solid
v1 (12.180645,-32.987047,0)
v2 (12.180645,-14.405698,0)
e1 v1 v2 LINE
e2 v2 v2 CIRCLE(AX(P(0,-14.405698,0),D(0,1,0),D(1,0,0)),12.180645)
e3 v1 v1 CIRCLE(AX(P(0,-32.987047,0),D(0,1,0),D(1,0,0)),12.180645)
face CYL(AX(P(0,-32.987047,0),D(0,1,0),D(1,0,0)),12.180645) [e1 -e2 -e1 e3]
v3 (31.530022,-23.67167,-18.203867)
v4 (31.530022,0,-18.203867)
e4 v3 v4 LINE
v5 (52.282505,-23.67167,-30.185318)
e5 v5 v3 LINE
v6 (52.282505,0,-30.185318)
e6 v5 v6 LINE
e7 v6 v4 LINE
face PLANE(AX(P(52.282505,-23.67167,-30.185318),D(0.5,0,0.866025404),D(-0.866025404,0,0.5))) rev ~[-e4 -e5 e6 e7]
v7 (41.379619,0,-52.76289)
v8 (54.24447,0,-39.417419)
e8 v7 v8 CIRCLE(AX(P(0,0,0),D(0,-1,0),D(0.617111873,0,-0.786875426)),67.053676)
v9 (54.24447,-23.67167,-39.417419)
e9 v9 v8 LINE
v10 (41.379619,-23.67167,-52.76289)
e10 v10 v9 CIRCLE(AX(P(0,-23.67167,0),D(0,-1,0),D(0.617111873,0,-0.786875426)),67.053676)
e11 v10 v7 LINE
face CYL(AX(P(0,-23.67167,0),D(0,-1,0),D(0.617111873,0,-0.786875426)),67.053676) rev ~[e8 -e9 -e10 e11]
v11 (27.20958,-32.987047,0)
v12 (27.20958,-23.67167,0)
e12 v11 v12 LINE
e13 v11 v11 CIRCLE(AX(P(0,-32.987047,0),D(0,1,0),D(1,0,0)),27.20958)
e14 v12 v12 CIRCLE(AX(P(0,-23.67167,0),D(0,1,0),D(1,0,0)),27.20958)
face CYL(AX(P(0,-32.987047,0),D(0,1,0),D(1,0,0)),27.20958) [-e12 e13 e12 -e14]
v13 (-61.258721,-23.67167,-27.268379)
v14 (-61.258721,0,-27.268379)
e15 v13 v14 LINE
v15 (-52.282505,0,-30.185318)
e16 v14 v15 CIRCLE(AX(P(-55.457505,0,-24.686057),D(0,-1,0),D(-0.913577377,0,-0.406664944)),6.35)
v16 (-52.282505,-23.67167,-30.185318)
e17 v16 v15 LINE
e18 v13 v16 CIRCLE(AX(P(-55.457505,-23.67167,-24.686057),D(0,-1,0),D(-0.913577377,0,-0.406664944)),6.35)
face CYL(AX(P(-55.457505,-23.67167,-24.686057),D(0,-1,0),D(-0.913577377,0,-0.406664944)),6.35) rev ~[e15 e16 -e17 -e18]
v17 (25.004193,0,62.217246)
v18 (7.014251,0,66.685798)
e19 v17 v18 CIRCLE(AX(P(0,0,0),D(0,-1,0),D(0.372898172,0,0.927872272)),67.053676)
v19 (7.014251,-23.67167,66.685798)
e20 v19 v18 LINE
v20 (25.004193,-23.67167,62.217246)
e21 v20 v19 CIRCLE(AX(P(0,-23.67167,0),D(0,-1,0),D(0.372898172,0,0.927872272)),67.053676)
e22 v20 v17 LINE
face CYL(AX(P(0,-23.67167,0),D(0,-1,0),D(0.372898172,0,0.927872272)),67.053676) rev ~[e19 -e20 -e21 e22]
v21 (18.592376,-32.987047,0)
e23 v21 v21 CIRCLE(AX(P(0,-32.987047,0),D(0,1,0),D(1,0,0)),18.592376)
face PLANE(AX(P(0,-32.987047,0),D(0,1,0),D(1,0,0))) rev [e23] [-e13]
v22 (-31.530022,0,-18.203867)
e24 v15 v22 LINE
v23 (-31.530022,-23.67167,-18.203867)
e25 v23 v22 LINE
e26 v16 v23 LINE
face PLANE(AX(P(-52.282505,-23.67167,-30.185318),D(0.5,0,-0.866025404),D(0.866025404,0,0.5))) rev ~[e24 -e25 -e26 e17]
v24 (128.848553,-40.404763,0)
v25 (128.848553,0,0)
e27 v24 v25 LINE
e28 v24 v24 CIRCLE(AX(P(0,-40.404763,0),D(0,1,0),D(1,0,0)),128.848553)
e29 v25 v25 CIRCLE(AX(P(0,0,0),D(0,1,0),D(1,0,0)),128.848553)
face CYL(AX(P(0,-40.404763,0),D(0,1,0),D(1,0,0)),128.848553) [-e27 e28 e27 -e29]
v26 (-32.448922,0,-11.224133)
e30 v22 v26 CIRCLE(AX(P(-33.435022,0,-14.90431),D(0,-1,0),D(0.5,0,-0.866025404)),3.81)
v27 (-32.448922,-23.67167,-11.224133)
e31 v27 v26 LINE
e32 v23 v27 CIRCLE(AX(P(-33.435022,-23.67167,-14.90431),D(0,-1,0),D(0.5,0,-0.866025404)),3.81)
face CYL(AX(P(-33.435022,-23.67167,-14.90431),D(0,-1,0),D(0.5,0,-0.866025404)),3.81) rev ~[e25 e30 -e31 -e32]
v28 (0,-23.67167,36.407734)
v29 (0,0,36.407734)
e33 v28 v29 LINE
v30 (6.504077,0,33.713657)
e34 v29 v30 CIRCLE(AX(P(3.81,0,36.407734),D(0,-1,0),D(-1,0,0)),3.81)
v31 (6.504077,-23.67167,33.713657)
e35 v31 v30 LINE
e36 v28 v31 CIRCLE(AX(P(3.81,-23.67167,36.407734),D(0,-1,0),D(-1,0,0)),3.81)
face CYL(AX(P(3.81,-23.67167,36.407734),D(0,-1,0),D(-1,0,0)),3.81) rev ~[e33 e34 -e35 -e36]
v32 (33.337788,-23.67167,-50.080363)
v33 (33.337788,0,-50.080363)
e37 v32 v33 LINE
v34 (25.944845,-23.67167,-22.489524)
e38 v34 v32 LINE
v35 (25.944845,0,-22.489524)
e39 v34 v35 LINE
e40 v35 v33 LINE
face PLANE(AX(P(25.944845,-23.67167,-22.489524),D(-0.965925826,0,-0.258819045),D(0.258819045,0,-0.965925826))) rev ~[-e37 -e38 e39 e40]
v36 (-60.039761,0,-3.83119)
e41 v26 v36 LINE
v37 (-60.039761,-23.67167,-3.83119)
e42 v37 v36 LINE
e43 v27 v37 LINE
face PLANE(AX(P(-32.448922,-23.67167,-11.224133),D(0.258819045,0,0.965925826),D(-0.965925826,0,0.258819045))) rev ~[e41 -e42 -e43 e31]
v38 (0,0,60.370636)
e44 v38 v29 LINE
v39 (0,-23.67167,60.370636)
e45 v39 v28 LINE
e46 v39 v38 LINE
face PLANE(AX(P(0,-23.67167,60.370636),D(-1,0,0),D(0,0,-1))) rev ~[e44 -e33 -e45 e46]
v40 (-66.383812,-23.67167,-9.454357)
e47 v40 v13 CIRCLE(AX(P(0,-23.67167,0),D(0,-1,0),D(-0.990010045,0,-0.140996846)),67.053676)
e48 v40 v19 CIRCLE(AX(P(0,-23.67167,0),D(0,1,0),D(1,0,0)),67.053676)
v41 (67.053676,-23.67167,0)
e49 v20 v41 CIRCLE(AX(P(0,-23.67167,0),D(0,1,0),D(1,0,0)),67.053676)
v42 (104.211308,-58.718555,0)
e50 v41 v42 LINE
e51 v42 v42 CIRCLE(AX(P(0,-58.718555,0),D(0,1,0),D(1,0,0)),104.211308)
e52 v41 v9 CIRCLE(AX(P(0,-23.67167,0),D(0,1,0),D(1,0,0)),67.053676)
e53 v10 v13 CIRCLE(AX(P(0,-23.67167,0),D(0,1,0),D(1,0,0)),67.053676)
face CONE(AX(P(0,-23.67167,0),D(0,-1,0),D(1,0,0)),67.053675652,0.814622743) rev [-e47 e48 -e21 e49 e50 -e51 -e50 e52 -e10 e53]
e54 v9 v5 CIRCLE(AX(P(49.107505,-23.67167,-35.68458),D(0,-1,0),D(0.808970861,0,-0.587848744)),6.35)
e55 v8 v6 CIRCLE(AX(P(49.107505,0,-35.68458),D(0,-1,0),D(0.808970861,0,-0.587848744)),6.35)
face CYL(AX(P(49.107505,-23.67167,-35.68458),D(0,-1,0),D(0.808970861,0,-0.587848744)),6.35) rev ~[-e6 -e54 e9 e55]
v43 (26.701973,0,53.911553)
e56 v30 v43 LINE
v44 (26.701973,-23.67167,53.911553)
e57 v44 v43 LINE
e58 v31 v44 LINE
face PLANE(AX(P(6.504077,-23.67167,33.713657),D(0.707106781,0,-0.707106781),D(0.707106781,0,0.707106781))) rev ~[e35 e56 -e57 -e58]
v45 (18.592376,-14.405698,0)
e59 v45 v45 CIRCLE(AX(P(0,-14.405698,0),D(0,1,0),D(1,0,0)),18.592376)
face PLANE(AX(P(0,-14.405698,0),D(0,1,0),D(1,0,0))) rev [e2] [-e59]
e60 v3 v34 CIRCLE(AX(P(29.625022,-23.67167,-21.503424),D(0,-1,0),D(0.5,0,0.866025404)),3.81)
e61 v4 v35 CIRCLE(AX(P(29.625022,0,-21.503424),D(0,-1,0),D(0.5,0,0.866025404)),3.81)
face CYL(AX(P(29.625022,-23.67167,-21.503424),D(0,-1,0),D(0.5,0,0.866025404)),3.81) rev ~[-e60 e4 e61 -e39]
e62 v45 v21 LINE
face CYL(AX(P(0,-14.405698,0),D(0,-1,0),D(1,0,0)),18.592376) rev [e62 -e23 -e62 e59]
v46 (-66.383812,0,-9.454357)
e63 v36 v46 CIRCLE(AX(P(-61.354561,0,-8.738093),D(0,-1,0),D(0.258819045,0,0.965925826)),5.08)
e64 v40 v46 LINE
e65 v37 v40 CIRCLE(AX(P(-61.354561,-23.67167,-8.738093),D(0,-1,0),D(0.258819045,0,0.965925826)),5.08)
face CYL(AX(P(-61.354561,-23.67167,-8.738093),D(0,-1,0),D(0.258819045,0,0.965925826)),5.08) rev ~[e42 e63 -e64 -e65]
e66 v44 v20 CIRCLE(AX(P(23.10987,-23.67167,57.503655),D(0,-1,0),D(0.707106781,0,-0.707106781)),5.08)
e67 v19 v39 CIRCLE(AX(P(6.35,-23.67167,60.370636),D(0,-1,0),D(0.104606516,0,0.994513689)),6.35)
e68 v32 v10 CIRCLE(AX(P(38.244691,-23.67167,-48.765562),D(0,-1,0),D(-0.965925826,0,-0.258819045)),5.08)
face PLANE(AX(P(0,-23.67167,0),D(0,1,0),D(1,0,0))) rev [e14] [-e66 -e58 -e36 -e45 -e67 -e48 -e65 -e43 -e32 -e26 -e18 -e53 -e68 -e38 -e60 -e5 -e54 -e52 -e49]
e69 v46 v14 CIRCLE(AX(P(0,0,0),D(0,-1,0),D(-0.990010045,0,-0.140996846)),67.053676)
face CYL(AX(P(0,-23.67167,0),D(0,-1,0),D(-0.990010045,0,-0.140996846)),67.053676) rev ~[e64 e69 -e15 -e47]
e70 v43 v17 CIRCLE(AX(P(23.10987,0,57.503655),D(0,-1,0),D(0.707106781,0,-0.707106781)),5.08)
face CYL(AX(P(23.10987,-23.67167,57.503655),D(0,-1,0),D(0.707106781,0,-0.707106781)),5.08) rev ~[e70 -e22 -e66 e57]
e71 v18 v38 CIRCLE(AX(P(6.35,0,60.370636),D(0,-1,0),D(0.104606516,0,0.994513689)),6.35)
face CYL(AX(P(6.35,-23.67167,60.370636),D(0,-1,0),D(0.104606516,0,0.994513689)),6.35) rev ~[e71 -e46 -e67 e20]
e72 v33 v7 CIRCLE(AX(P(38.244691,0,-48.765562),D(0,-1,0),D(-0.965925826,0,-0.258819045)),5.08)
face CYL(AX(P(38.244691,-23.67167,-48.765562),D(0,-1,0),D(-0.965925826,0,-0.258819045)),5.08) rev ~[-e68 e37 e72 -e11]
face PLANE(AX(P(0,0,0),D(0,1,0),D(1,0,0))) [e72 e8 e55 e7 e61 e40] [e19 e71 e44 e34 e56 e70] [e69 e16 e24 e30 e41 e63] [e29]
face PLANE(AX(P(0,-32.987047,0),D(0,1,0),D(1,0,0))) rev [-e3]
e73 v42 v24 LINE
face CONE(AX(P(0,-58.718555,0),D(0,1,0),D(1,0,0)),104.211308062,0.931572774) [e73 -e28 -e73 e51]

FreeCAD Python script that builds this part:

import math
import FreeCAD as App
import Part
import Sketcher
from FreeCAD import Vector
Q = App.Units.Quantity


def faces_at(feature, points):
    """Names of the faces that lie closest to the given points."""
    faces = feature.Shape.Faces
    near = lambda p: min(range(len(faces)), key=lambda i: faces[i].distToShape(Part.Vertex(*p))[0])
    return sorted({f"Face{near(p) + 1}" for p in points})


def add_polygon(sketch, points):
    """Adds a closed chain of lines whose ends are joined by coincident constraints."""
    first, n = sketch.GeometryCount, len(points)
    for a, b in zip(points, points[1:] + points[:1]):
        sketch.addGeometry(Part.LineSegment(App.Vector(*a, 0), App.Vector(*b, 0)), False)
    for i in range(n):
        sketch.addConstraint(Sketcher.Constraint("Coincident", first + i, 2, first + (i + 1) % n, 1))

doc = App.newDocument("Part")
body = doc.addObject("PartDesign::Body", "Body")

sketch1 = body.newObject("Sketcher::SketchObject", "Sketch")
sketch1.AttachmentSupport = (doc.getObject("XY_Plane"), [""])
sketch1.MapMode = "FlatFace"
add_polygon(sketch1, [(-114, 73), (-114, 0), (0, 0), (0, 73)])
sketch1.addConstraint([
    Sketcher.Constraint("Vertical", 0),
    Sketcher.Constraint("Horizontal", 1),
    Sketcher.Constraint("Vertical", 2),
    Sketcher.Constraint("Horizontal", 3),
    Sketcher.Constraint("Coincident", 1, 2, -1, 1),
    Sketcher.Constraint("DistanceY", 0, 2, 0, 1, Q("73.28774 mm")),
    Sketcher.Constraint("DistanceX", 1, 1, 1, 2, Q("113.560587 mm")),
])
pad1 = body.newObject("PartDesign::Pad", "Pad")
pad1.Profile = sketch1
pad1.Length = Q("10 in")
doc.recompute()

thickness = body.newObject("PartDesign::Thickness", "Thickness")
thickness.Base = (pad1, faces_at(pad1, [(0, 36.644, 127)]))
thickness.Value = Q("0.01 in")
thickness.Reversed = True
thickness.Join = "Arc"
body2 = doc.addObject("PartDesign::Body", "Body001")

sketch2 = body2.newObject("Sketcher::SketchObject", "Sketch001")
sketch2.AttachmentSupport = (doc.getObject("XY_Plane001"), [""])
sketch2.MapMode = "FlatFace"
add_polygon(sketch2, [(129, 0), (0, 0), (0, -33), (12, -33), (12, -14), (19, -14), (19, -33), (27, -33), (27, -24), (67, -24), (104, -59), (129, -40)])
sketch2.addConstraint([
    Sketcher.Constraint("Horizontal", 0),
    Sketcher.Constraint("Vertical", 1),
    Sketcher.Constraint("Horizontal", 2),
    Sketcher.Constraint("Vertical", 3),
    Sketcher.Constraint("Horizontal", 4),
    Sketcher.Constraint("Vertical", 5),
    Sketcher.Constraint("Horizontal", 6),
    Sketcher.Constraint("Vertical", 7),
    Sketcher.Constraint("Horizontal", 8),
    Sketcher.Constraint("Vertical", 11),
    Sketcher.Constraint("Coincident", 0, 2, -1, 1),
    Sketcher.Constraint("Horizontal", 2, 2, 5, 2),
    Sketcher.Constraint("DistanceX", 4, 1, 4, 2, Q("6.411731 mm")),
    Sketcher.Constraint("DistanceY", 3, 1, 3, 2, Q("18.581349 mm")),
    Sketcher.Constraint("DistanceX", 4, 2, 8, 2, Q("48.461299 mm")),
    Sketcher.Constraint("Distance", 10, Q("30.698352 mm")),
    Sketcher.Constraint("DistanceX", 0, 2, 0, 1, Q("128.848553 mm")),
    Sketcher.Constraint("DistanceX", 2, 1, 2, 2, Q("12.180645 mm")),
    Sketcher.Constraint("DistanceX", 6, 1, 6, 2, Q("8.617204 mm")),
    Sketcher.Constraint("DistanceY", 1, 2, 1, 1, Q("32.987047 mm")),
    Sketcher.Constraint("DistanceY", 7, 1, 7, 2, Q("9.315377 mm")),
    Sketcher.Constraint("DistanceY", 11, 1, 11, 2, Q("40.404763 mm")),
    Sketcher.Constraint("DistanceX", -1, 1, 9, 2, Q("104.211308 mm")),
])
revolution = body2.newObject("PartDesign::Revolution", "Revolution")
revolution.Profile = sketch2
revolution.ReferenceAxis = (sketch2, ["V_Axis"])
revolution.Angle = 360

sketch3 = body2.newObject("Sketcher::SketchObject", "Sketch002")
sketch3.AttachmentSupport = (doc.getObject("XZ_Plane001"), [""])
sketch3.MapMode = "FlatFace"
sketch3.AttachmentOffset = App.Placement(Vector(0, 0, 23.67167), App.Rotation())
sketch3.addGeometry([
    Part.ArcOfCircle(Part.Circle(Vector(23.1, 57.5, 0), Vector(0, 0, 1), 5.1), math.radians(-45), math.radians(68)),
    Part.ArcOfCircle(Part.Circle(Vector(0, 0, 0), Vector(0, 0, 1), 67.1), math.radians(68.11), math.radians(84)),
    Part.ArcOfCircle(Part.Circle(Vector(6.3, 60.4, 0), Vector(0, 0, 1), 6.3), math.radians(84), math.radians(180)),
    Part.LineSegment(Vector(0, 60.4, 0), Vector(0, 36.4, 0)),
    Part.ArcOfCircle(Part.Circle(Vector(3.8, 36.4, 0), Vector(0, 0, 1), 3.8), math.radians(180), math.radians(315)),
    Part.LineSegment(Vector(6.5, 33.7, 0), Vector(26.7, 53.9, 0)),
    Part.ArcOfCircle(Part.Circle(Vector(0, 0, 0), Vector(0, 0, 1), 67.1), math.radians(-51.89), math.radians(-36)),
    Part.ArcOfCircle(Part.Circle(Vector(49.1, -35.7, 0), Vector(0, 0, 1), 6.3), math.radians(-36), math.radians(60)),
    Part.LineSegment(Vector(52.3, -30.2, 0), Vector(31.5, -18.2, 0)),
    Part.ArcOfCircle(Part.Circle(Vector(29.6, -21.5, 0), Vector(0, 0, 1), 3.8), math.radians(60), math.radians(195)),
    Part.LineSegment(Vector(25.9, -22.5, 0), Vector(33.3, -50.1, 0)),
    Part.ArcOfCircle(Part.Circle(Vector(38.2, -48.8, 0), Vector(0, 0, 1), 5.1), math.radians(-165), math.radians(-52)),
    Part.ArcOfCircle(Part.Circle(Vector(-61.4, -8.7, 0), Vector(0, 0, 1), 5.1), math.radians(75), math.radians(188)),
    Part.ArcOfCircle(Part.Circle(Vector(0, 0, 0), Vector(0, 0, 1), 67.1), math.radians(-171.89), math.radians(-156)),
    Part.ArcOfCircle(Part.Circle(Vector(-55.5, -24.7, 0), Vector(0, 0, 1), 6.3), math.radians(-156), math.radians(-60)),
    Part.LineSegment(Vector(-52.3, -30.2, 0), Vector(-31.5, -18.2, 0)),
    Part.ArcOfCircle(Part.Circle(Vector(-33.4, -14.9, 0), Vector(0, 0, 1), 3.8), math.radians(-60), math.radians(75)),
    Part.LineSegment(Vector(-32.4, -11.2, 0), Vector(-60, -3.8, 0)),
], False)
sketch3.addConstraint([
    Sketcher.Constraint("Tangent", 0, 2, 1, 1),
    Sketcher.Constraint("Tangent", 1, 2, 2, 1),
    Sketcher.Constraint("Tangent", 2, 2, 3, 1),
    Sketcher.Constraint("Tangent", 3, 2, 4, 1),
    Sketcher.Constraint("Tangent", 4, 2, 5, 1),
    Sketcher.Constraint("Tangent", 5, 2, 0, 1),
    Sketcher.Constraint("Tangent", 6, 2, 7, 1),
    Sketcher.Constraint("Tangent", 7, 2, 8, 1),
    Sketcher.Constraint("Tangent", 8, 2, 9, 1),
    Sketcher.Constraint("Tangent", 9, 2, 10, 1),
    Sketcher.Constraint("Tangent", 10, 2, 11, 1),
    Sketcher.Constraint("Tangent", 11, 2, 6, 1),
    Sketcher.Constraint("Tangent", 12, 2, 13, 1),
    Sketcher.Constraint("Tangent", 13, 2, 14, 1),
    Sketcher.Constraint("Tangent", 14, 2, 15, 1),
    Sketcher.Constraint("Tangent", 15, 2, 16, 1),
    Sketcher.Constraint("Tangent", 16, 2, 17, 1),
    Sketcher.Constraint("Tangent", 17, 2, 12, 1),
    Sketcher.Constraint("Vertical", 3),
    Sketcher.Constraint("Coincident", 1, 3, -1, 1),
    Sketcher.Constraint("Coincident", 6, 3, -1, 1),
    Sketcher.Constraint("Coincident", 13, 3, -1, 1),
    Sketcher.Constraint("Equal", 1, 6),
    Sketcher.Constraint("Equal", 2, 7),
    Sketcher.Constraint("Equal", 4, 9),
    Sketcher.Constraint("Equal", 0, 11),
    Sketcher.Constraint("Equal", 11, 12),
    Sketcher.Constraint("Equal", 6, 13),
    Sketcher.Constraint("Equal", 7, 14),
    Sketcher.Constraint("Equal", 9, 16),
    Sketcher.Constraint("Symmetric", 7, 2, 14, 2, -2),
    Sketcher.Constraint("Symmetric", 8, 2, 15, 2, -2),
    Sketcher.Constraint("PointOnObject", 2, 2, -2),
    Sketcher.Constraint("Equal", 5, 10),
    Sketcher.Constraint("Equal", 10, 17),
    Sketcher.Constraint("Radius", 0, Q("0.2 in")),
    Sketcher.Constraint("Radius", 2, Q("0.25 in")),
    Sketcher.Constraint("Radius", 4, Q("0.15 in")),
    Sketcher.Constraint("Angle", 5, Q("45 deg")),
    Sketcher.Constraint("Angle", 8, Q("150 deg")),
    Sketcher.Constraint("Angle", 10, Q("-75 deg")),
    Sketcher.Constraint("Radius", 1, Q("67.053676 mm")),
    Sketcher.Constraint("DistanceY", 4, 2, 0, 3, Q("23.789998 mm")),
])
pocket1 = body2.newObject("PartDesign::Pocket", "Pocket")
pocket1.Profile = sketch3
pocket1.Type = "ThroughAll"
body.Visibility = False

doc.recompute()
